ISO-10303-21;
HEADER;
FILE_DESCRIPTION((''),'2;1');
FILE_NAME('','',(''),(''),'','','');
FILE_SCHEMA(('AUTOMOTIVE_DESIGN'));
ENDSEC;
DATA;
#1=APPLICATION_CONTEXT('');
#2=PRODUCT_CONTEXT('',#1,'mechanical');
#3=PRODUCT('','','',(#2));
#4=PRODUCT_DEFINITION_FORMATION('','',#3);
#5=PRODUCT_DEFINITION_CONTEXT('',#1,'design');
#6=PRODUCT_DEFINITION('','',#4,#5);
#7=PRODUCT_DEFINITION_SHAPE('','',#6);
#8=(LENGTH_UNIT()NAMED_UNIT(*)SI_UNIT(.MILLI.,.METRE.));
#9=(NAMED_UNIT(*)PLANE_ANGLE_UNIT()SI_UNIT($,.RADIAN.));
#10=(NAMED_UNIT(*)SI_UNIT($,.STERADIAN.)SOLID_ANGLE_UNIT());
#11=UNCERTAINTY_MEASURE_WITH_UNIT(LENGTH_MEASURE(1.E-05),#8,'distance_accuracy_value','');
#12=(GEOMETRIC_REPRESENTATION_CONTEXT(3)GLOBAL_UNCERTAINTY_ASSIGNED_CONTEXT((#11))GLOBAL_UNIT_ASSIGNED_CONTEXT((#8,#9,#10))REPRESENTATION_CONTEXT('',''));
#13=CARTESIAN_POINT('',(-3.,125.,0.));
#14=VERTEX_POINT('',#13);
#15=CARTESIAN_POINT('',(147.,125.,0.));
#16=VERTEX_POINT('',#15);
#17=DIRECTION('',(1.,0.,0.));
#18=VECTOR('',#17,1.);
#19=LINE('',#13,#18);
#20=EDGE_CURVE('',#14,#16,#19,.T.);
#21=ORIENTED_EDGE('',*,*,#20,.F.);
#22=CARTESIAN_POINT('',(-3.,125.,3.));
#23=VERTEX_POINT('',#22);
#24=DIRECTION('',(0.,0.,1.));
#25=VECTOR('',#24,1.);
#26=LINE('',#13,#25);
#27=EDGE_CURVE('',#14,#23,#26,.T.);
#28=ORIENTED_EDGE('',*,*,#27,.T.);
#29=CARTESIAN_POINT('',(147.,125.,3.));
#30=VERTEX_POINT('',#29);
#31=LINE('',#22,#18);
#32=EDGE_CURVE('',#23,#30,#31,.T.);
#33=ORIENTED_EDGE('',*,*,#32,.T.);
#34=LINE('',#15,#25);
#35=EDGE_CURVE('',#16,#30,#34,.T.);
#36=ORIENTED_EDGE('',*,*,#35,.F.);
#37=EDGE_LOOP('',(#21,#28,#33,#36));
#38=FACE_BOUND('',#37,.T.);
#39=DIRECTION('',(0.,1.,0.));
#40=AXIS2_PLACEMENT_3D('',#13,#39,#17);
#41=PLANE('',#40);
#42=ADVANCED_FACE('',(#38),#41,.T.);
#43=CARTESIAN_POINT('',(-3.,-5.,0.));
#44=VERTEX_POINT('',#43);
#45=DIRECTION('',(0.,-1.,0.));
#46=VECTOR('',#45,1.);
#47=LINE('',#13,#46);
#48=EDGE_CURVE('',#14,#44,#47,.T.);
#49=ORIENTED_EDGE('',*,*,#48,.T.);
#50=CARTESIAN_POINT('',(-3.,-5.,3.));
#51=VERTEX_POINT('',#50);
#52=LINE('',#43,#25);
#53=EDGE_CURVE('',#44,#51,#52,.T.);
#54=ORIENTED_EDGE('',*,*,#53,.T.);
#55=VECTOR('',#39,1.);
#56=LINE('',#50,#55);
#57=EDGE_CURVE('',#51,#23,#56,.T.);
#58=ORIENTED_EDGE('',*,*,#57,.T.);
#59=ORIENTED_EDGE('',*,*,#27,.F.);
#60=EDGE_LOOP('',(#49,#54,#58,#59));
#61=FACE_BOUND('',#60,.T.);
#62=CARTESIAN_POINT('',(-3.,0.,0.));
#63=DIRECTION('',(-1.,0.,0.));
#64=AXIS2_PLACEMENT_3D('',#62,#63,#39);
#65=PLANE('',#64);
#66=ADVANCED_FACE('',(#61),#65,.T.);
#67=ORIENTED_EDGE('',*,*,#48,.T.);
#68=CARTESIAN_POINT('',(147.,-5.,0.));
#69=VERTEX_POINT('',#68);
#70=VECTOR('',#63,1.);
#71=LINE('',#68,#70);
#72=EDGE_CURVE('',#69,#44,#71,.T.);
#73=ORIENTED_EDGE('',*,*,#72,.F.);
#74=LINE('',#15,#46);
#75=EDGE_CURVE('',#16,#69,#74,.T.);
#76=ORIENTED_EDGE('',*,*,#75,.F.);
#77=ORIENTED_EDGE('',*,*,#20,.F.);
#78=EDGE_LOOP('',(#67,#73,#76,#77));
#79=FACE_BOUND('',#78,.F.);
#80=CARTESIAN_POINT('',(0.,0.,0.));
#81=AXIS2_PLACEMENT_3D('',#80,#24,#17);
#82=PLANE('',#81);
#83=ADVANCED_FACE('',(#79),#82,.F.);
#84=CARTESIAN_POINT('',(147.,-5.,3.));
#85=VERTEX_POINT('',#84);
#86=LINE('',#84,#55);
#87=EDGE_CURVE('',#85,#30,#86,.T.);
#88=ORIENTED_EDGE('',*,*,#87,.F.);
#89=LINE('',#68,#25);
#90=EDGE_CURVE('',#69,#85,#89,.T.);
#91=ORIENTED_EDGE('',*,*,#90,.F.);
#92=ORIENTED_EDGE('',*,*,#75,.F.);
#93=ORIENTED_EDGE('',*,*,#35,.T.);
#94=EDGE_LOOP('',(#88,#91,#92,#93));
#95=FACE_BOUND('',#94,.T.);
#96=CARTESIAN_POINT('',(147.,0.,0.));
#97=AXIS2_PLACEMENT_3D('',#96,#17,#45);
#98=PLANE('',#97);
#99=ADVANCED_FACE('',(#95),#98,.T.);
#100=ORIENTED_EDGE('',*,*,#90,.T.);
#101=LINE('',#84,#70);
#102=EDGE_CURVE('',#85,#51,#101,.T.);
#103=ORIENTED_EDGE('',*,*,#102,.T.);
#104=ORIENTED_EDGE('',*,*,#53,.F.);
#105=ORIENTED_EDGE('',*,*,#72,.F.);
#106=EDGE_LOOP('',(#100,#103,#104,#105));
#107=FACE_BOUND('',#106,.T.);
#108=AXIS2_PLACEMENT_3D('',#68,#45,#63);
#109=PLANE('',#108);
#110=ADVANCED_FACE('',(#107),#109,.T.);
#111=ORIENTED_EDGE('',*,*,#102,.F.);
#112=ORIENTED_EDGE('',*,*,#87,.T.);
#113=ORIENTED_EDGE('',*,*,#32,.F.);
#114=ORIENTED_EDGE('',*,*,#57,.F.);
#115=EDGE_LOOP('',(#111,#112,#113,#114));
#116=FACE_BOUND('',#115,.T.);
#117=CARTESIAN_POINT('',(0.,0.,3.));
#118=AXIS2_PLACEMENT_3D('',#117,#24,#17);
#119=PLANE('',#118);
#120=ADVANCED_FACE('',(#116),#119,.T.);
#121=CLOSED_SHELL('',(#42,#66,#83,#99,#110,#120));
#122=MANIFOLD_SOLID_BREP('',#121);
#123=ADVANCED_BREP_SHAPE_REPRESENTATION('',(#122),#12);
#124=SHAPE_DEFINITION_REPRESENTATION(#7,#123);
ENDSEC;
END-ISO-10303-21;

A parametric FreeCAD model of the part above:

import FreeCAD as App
import Part
import Sketcher

doc = App.newDocument("Part")
body = doc.addObject("PartDesign::Body", "Body")

# Sketch on XY plane
sketch1 = body.newObject("Sketcher::SketchObject", "Sketch")
sketch1.AttachmentSupport = (doc.getObject("XY_Plane"), [""])
sketch1.MapMode = "FlatFace"
sketch1.addGeometry([
    Part.LineSegment(App.Vector(-3, -5, 0), App.Vector(147, -5, 0)),
    Part.LineSegment(App.Vector(147, -5, 0), App.Vector(147, 125, 0)),
    Part.LineSegment(App.Vector(147, 125, 0), App.Vector(-3, 125, 0)),
    Part.LineSegment(App.Vector(-3, 125, 0), App.Vector(-3, -5, 0)),
], False)
sketch1.addConstraint([
    Sketcher.Constraint("Coincident", 0, 2, 1, 1),
    Sketcher.Constraint("Coincident", 1, 2, 2, 1),
    Sketcher.Constraint("Coincident", 2, 2, 3, 1),
    Sketcher.Constraint("Coincident", 3, 2, 0, 1),
    Sketcher.Constraint("Horizontal", 0),
    Sketcher.Constraint("Vertical", 1),
    Sketcher.Constraint("Horizontal", 2),
    Sketcher.Constraint("Vertical", 3),
    Sketcher.Constraint("DistanceX", 0, 1, 0, 2, 150.0),
    Sketcher.Constraint("DistanceY", 1, 1, 1, 2, 130.0),
    Sketcher.Constraint("DistanceX", -1, 1, 0, 2, 147.0),
    Sketcher.Constraint("DistanceY", 0, 2, -1, 1, 5.0),
])
pad1 = body.newObject("PartDesign::Pad", "Pad")
pad1.Profile = sketch1
pad1.Length = 3

doc.recompute()
